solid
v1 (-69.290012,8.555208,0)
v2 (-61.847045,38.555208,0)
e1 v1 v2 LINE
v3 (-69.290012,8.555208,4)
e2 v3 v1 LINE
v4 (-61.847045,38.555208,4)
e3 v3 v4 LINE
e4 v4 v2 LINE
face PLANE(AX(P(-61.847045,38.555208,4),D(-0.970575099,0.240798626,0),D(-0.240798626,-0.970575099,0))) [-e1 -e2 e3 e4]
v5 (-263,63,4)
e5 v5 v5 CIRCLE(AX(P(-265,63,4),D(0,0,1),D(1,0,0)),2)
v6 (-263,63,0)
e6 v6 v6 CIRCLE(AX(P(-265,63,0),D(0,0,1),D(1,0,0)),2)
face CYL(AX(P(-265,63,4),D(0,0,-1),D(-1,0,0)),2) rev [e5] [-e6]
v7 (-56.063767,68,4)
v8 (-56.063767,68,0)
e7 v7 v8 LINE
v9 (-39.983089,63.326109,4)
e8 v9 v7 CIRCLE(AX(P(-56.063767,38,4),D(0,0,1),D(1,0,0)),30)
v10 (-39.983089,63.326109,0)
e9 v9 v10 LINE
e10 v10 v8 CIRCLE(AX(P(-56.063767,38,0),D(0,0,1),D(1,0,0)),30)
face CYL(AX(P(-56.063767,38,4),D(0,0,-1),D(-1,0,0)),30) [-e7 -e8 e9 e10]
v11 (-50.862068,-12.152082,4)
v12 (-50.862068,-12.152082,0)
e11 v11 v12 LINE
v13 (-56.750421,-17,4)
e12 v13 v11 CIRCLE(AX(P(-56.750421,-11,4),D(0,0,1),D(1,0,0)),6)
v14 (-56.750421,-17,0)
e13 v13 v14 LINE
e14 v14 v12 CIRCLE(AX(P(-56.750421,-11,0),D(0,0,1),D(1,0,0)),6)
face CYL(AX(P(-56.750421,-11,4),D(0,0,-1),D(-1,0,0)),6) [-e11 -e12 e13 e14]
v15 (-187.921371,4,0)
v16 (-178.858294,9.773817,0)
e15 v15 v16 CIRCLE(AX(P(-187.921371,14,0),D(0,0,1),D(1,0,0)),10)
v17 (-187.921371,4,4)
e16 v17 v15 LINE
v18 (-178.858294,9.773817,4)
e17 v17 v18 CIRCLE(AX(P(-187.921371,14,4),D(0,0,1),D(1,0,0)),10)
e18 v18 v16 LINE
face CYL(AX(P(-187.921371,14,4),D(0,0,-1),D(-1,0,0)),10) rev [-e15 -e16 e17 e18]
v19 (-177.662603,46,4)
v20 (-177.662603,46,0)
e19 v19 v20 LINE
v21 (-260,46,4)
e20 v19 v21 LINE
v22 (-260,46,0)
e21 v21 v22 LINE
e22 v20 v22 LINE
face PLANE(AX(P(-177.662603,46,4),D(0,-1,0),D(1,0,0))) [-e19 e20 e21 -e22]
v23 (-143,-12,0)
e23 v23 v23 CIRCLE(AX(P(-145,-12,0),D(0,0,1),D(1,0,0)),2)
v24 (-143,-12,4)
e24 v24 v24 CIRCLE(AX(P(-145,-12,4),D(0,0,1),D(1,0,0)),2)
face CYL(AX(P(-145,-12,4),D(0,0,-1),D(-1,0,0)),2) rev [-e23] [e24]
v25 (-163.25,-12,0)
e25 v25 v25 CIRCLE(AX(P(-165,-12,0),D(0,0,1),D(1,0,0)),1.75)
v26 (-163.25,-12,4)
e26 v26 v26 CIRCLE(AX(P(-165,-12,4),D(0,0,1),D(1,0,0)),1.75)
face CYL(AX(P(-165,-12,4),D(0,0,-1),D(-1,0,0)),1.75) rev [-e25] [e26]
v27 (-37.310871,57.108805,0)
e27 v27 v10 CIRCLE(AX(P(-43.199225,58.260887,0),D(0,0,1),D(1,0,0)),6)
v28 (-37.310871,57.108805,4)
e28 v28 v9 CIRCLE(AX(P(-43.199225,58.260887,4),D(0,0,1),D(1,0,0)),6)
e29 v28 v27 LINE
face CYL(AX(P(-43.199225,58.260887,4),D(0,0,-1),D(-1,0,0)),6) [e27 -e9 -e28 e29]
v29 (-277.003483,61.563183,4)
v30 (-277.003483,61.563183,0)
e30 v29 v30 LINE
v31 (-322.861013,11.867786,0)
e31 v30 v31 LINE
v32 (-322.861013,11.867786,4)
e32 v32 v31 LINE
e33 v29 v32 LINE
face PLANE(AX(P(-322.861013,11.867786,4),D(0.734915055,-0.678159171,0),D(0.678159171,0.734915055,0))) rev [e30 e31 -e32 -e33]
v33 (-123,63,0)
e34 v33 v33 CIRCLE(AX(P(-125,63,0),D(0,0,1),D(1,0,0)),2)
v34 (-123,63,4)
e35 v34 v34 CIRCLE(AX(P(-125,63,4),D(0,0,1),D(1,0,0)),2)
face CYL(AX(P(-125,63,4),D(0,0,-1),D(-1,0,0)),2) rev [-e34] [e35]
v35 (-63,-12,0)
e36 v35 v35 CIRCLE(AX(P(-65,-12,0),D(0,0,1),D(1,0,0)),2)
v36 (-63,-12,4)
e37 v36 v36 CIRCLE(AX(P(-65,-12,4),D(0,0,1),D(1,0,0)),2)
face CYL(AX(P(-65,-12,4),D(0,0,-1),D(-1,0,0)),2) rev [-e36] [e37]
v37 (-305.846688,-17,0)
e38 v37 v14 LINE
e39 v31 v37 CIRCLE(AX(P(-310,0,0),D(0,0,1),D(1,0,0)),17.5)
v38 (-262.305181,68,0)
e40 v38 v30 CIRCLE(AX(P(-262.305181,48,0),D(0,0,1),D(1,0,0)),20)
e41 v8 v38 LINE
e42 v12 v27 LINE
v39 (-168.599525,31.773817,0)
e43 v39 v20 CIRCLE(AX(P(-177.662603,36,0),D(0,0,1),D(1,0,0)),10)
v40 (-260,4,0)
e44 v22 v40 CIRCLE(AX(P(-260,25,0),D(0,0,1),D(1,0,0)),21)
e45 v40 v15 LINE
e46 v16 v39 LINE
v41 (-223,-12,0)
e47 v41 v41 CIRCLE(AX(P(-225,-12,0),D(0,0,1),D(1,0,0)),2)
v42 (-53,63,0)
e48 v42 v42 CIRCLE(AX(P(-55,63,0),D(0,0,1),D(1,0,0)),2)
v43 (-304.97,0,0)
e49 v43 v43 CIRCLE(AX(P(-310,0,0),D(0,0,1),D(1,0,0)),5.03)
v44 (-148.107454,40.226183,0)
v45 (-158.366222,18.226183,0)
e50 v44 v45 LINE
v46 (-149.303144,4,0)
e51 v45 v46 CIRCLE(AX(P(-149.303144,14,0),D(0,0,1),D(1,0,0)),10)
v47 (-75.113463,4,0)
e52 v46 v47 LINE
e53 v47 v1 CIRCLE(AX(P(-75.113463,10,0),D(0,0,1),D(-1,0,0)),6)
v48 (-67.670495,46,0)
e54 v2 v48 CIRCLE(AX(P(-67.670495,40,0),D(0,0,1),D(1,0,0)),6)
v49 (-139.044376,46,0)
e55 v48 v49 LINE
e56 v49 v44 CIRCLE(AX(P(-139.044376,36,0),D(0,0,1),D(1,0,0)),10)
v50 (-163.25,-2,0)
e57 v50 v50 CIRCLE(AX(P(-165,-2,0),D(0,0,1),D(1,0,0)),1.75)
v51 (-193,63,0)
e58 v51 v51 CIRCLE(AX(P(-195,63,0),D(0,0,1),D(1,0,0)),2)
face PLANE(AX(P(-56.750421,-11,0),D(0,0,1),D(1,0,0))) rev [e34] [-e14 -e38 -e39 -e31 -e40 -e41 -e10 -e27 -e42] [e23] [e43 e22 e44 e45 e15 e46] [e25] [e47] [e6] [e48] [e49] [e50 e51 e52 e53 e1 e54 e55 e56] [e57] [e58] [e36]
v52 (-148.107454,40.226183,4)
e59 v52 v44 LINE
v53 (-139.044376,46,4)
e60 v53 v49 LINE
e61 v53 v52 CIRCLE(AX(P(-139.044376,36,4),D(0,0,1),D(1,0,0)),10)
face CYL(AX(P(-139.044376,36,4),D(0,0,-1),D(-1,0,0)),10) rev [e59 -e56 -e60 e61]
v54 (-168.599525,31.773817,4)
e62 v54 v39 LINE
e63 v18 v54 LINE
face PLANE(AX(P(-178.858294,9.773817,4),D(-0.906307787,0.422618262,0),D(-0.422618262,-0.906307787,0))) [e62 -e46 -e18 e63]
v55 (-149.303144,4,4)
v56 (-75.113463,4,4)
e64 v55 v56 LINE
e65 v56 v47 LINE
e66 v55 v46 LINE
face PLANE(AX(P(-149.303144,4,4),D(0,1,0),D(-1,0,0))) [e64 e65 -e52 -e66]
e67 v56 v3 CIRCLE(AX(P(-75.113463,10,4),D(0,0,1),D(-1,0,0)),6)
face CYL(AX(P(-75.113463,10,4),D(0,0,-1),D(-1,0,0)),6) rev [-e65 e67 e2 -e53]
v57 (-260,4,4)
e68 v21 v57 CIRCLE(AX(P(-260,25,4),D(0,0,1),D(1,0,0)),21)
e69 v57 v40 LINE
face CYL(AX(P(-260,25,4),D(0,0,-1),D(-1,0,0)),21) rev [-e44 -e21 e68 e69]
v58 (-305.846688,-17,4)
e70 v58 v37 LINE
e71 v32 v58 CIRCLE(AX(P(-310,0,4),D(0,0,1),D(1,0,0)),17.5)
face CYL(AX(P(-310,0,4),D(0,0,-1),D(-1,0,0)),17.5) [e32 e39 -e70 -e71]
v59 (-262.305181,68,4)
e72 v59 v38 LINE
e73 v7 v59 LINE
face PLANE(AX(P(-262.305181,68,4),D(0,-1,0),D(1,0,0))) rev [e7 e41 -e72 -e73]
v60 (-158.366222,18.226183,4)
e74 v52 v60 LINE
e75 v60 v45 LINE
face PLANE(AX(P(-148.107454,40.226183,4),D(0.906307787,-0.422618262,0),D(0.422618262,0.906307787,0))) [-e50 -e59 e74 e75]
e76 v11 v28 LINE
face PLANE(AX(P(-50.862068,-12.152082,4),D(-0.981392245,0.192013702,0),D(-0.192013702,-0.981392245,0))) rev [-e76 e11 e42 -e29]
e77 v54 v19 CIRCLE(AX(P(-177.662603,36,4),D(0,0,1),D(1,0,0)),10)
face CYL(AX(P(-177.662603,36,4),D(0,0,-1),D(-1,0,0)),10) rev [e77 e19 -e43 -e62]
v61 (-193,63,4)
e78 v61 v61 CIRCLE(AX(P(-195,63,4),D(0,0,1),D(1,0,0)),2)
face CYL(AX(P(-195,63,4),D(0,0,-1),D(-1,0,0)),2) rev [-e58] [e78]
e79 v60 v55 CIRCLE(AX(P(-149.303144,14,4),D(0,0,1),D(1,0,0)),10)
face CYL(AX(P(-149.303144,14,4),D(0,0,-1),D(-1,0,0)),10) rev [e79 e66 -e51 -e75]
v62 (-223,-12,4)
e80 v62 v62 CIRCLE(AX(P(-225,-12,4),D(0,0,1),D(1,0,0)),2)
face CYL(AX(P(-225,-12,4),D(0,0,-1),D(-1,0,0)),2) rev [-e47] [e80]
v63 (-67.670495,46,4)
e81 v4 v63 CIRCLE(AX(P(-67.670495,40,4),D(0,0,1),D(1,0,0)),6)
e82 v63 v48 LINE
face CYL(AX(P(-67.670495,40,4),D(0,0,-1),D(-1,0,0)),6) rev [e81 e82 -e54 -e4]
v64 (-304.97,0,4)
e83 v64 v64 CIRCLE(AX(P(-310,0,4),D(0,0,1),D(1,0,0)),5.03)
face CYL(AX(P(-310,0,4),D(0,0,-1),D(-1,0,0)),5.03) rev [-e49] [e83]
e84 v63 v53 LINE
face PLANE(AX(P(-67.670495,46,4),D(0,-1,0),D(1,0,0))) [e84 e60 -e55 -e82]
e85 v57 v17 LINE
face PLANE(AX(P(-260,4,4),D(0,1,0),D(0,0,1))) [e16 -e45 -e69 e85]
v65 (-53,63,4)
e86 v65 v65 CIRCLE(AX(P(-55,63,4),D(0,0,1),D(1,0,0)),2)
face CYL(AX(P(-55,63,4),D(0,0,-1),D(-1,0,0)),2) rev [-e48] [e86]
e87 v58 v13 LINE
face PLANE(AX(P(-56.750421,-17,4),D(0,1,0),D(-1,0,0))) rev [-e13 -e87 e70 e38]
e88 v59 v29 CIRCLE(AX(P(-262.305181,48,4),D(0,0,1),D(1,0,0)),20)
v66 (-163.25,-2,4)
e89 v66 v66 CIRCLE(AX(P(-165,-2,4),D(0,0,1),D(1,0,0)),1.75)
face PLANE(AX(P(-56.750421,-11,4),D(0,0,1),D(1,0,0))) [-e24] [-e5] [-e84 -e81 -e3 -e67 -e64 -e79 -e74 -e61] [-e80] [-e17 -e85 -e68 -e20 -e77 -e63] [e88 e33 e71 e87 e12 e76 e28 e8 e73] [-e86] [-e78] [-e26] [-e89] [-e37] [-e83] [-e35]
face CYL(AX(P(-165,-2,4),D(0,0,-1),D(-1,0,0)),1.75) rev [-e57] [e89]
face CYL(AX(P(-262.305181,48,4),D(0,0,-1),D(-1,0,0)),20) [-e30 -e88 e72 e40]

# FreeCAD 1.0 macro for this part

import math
import FreeCAD as App
import Part
import Sketcher
Q = App.Units.Quantity

doc = App.newDocument("Part")
body = doc.addObject("PartDesign::Body", "Body")

sketch1 = body.newObject("Sketcher::SketchObject", "Sketch")
sketch1.AttachmentSupport = (doc.getObject("XY_Plane"), [""])
sketch1.MapMode = "FlatFace"
sketch1.addGeometry([
    Part.LineSegment(App.Vector(-56.063767, 68, 0), App.Vector(-262.305181, 68, 0)),
    Part.ArcOfCircle(Part.Circle(App.Vector(-262.305181, 48, 0), App.Vector(0, 0, 1), 20), math.radians(90), math.radians(137.300039)),
    Part.LineSegment(App.Vector(-277.003483, 61.563183, 0), App.Vector(-322.861013, 11.867786, 0)),
    Part.ArcOfCircle(Part.Circle(App.Vector(-310, 0, 0), App.Vector(0, 0, 1), 17.5), math.radians(137.300039), math.radians(283.729133)),
    Part.LineSegment(App.Vector(-305.846688, -17, 0), App.Vector(-56.750421, -17, 0)),
    Part.ArcOfCircle(Part.Circle(App.Vector(-56.750421, -11, 0), App.Vector(0, 0, 1), 6), math.radians(-90), math.radians(-11.070325)),
    Part.LineSegment(App.Vector(-50.862068, -12.152082, 0), App.Vector(-37.310871, 57.108805, 0)),
    Part.ArcOfCircle(Part.Circle(App.Vector(-43.199225, 58.260887, 0), App.Vector(0, 0, 1), 6), math.radians(-11.070325), math.radians(57.586712)),
    Part.ArcOfCircle(Part.Circle(App.Vector(-56.063767, 38, 0), App.Vector(0, 0, 1), 30), math.radians(57.586712), math.radians(90)),
    Part.Circle(App.Vector(-310, 0, 0), App.Vector(0, 0, 1), 5.03),
    Part.Circle(App.Vector(-225, -12, 0), App.Vector(0, 0, 1), 2),
    Part.ArcOfCircle(Part.Circle(App.Vector(-177.662603, 36, 0), App.Vector(0, 0, 1), 10), math.radians(-25), math.radians(90)),
    Part.LineSegment(App.Vector(-168.599525, 31.773817, 0), App.Vector(-178.858294, 9.773817, 0)),
    Part.ArcOfCircle(Part.Circle(App.Vector(-187.921371, 14, 0), App.Vector(0, 0, 1), 10), math.radians(-90), math.radians(-25)),
    Part.LineSegment(App.Vector(-187.921371, 4, 0), App.Vector(-260, 4, 0)),
    Part.ArcOfCircle(Part.Circle(App.Vector(-260, 25, 0), App.Vector(0, 0, 1), 21), math.radians(90), math.radians(270)),
    Part.LineSegment(App.Vector(-260, 46, 0), App.Vector(-177.662603, 46, 0)),
    Part.Circle(App.Vector(-165, -12, 0), App.Vector(0, 0, 1), 1.75),
    Part.Circle(App.Vector(-145, -12, 0), App.Vector(0, 0, 1), 2),
    Part.Circle(App.Vector(-165, -2, 0), App.Vector(0, 0, 1), 1.75),
    Part.Circle(App.Vector(-65, -12, 0), App.Vector(0, 0, 1), 2),
    Part.ArcOfCircle(Part.Circle(App.Vector(-139.044376, 36, 0), App.Vector(0, 0, 1), 10), math.radians(90), math.radians(155)),
    Part.LineSegment(App.Vector(-139.044376, 46, 0), App.Vector(-67.670495, 46, 0)),
    Part.ArcOfCircle(Part.Circle(App.Vector(-67.670495, 40, 0), App.Vector(0, 0, 1), 6), math.radians(-13.933681), math.radians(90)),
    Part.LineSegment(App.Vector(-61.847045, 38.555208, 0), App.Vector(-69.290012, 8.555208, 0)),
    Part.ArcOfCircle(Part.Circle(App.Vector(-75.113463, 10, 0), App.Vector(0, 0, 1), 6), math.radians(-90), math.radians(-13.933681)),
    Part.LineSegment(App.Vector(-75.113463, 4, 0), App.Vector(-149.303144, 4, 0)),
    Part.ArcOfCircle(Part.Circle(App.Vector(-149.303144, 14, 0), App.Vector(0, 0, 1), 10), math.radians(155), math.radians(270)),
    Part.LineSegment(App.Vector(-158.366222, 18.226183, 0), App.Vector(-148.107454, 40.226183, 0)),
    Part.Circle(App.Vector(-265, 63, 0), App.Vector(0, 0, 1), 2),
    Part.Circle(App.Vector(-195, 63, 0), App.Vector(0, 0, 1), 2),
    Part.Circle(App.Vector(-125, 63, 0), App.Vector(0, 0, 1), 2),
    Part.Circle(App.Vector(-55, 63, 0), App.Vector(0, 0, 1), 2),
], False)
sketch1.addConstraint([
    Sketcher.Constraint("Coincident", 0, 2, 1, 1),
    Sketcher.Constraint("Coincident", 1, 2, 2, 1),
    Sketcher.Constraint("Coincident", 2, 2, 3, 1),
    Sketcher.Constraint("Coincident", 3, 2, 4, 1),
    Sketcher.Constraint("Coincident", 4, 2, 5, 1),
    Sketcher.Constraint("Coincident", 5, 2, 6, 1),
    Sketcher.Constraint("Coincident", 6, 2, 7, 1),
    Sketcher.Constraint("Coincident", 7, 2, 8, 1),
    Sketcher.Constraint("Coincident", 8, 2, 0, 1),
    Sketcher.Constraint("Coincident", 11, 1, 12, 1),
    Sketcher.Constraint("Coincident", 12, 2, 13, 2),
    Sketcher.Constraint("Coincident", 13, 1, 14, 1),
    Sketcher.Constraint("Coincident", 14, 2, 15, 2),
    Sketcher.Constraint("Coincident", 15, 1, 16, 1),
    Sketcher.Constraint("Coincident", 16, 2, 11, 2),
    Sketcher.Constraint("Coincident", 21, 1, 22, 1),
    Sketcher.Constraint("Coincident", 22, 2, 23, 2),
    Sketcher.Constraint("Coincident", 23, 1, 24, 1),
    Sketcher.Constraint("Coincident", 24, 2, 25, 2),
    Sketcher.Constraint("Coincident", 25, 1, 26, 1),
    Sketcher.Constraint("Coincident", 26, 2, 27, 2),
    Sketcher.Constraint("Coincident", 27, 1, 28, 1),
    Sketcher.Constraint("Coincident", 28, 2, 21, 2),
    Sketcher.Constraint("Horizontal", 0),
    Sketcher.Constraint("Horizontal", 4),
    Sketcher.Constraint("Horizontal", 14),
    Sketcher.Constraint("Horizontal", 16),
    Sketcher.Constraint("Horizontal", 22),
    Sketcher.Constraint("Horizontal", 26),
    Sketcher.Constraint("Coincident", 9, 3, 3, 3),
    Sketcher.Constraint("PointOnObject", 3, 3, -1),
    Sketcher.Constraint("Diameter", 10, Q("4 mm")),
    Sketcher.Constraint("Diameter", 18, Q("4 mm")),
    Sketcher.Constraint("Diameter", 20, Q("4 mm")),
    Sketcher.Constraint("Diameter", 29, Q("4 mm")),
    Sketcher.Constraint("Diameter", 30, Q("4 mm")),
    Sketcher.Constraint("Diameter", 31, Q("4 mm")),
    Sketcher.Constraint("Diameter", 32, Q("4 mm")),
    Sketcher.Constraint("Radius", 1, Q("20 mm")),
    Sketcher.Constraint("Radius", 5, Q("6 mm")),
    Sketcher.Constraint("Radius", 7, Q("6 mm")),
    Sketcher.Constraint("Radius", 8, Q("30 mm")),
    Sketcher.Constraint("Radius", 11, Q("10 mm")),
    Sketcher.Constraint("Radius", 13, Q("10 mm")),
    Sketcher.Constraint("Radius", 15, Q("21 mm")),
    Sketcher.Constraint("Radius", 21, Q("10 mm")),
    Sketcher.Constraint("Radius", 23, Q("6 mm")),
    Sketcher.Constraint("Radius", 25, Q("6 mm")),
    Sketcher.Constraint("Radius", 27, Q("10 mm")),
    Sketcher.Constraint("Diameter", 17, Q("3.5 mm")),
    Sketcher.Constraint("Diameter", 19, Q("3.5 mm")),
    Sketcher.Constraint("Radius", 3, Q("17.5 mm")),
    Sketcher.Constraint("Diameter", 9, Q("10.06 mm")),
    Sketcher.Constraint("DistanceY", -1, 1, 1, 3, Q("48 mm")),
    Sketcher.Constraint("DistanceX", 3, 3, -1, 1, Q("310 mm")),
    Sketcher.Constraint("DistanceY", 5, 3, -1, 1, Q("11 mm")),
    Sketcher.Constraint("DistanceX", 10, 3, -1, 1, Q("225 mm")),
    Sketcher.Constraint("DistanceY", 10, 3, -1, 1, Q("12 mm")),
    Sketcher.Constraint("DistanceY", -1, 1, 11, 3, Q("36 mm")),
    Sketcher.Constraint("DistanceX", 15, 3, -1, 1, Q("260 mm")),
    Sketcher.Constraint("DistanceX", 17, 3, -1, 1, Q("165 mm")),
    Sketcher.Constraint("DistanceY", 17, 3, -1, 1, Q("12 mm")),
    Sketcher.Constraint("DistanceX", 18, 3, -1, 1, Q("145 mm")),
    Sketcher.Constraint("DistanceY", 18, 3, -1, 1, Q("12 mm")),
    Sketcher.Constraint("DistanceX", 19, 3, -1, 1, Q("165 mm")),
    Sketcher.Constraint("DistanceY", 19, 3, -1, 1, Q("2 mm")),
    Sketcher.Constraint("DistanceX", 20, 3, -1, 1, Q("65 mm")),
    Sketcher.Constraint("DistanceY", 20, 3, -1, 1, Q("12 mm")),
    Sketcher.Constraint("DistanceY", -1, 1, 21, 3, Q("36 mm")),
    Sketcher.Constraint("DistanceY", -1, 1, 25, 3, Q("10 mm")),
    Sketcher.Constraint("DistanceX", 29, 3, -1, 1, Q("265 mm")),
    Sketcher.Constraint("DistanceY", -1, 1, 29, 3, Q("63 mm")),
    Sketcher.Constraint("DistanceX", 30, 3, -1, 1, Q("195 mm")),
    Sketcher.Constraint("DistanceY", -1, 1, 30, 3, Q("63 mm")),
    Sketcher.Constraint("DistanceX", 31, 3, -1, 1, Q("125 mm")),
    Sketcher.Constraint("DistanceY", -1, 1, 31, 3, Q("63 mm")),
    Sketcher.Constraint("DistanceX", 32, 3, -1, 1, Q("55 mm")),
    Sketcher.Constraint("DistanceY", -1, 1, 32, 3, Q("63 mm")),
    Sketcher.Constraint("DistanceX", 14, 2, -1, 1, Q("260 mm")),
    Sketcher.Constraint("DistanceX", 15, 1, -1, 1, Q("260 mm")),
    Sketcher.Constraint("DistanceY", 12, 2, 11, 1, Q("22 mm")),
    Sketcher.Constraint("DistanceY", 27, 1, 28, 2, Q("22 mm")),
    Sketcher.Constraint("Distance", 2, Q("67.620601 mm")),
    Sketcher.Constraint("DistanceX", 14, 2, 14, 1, Q("72.078629 mm")),
    Sketcher.Constraint("DistanceX", 22, 1, 22, 2, Q("71.37388 mm")),
    Sketcher.Constraint("DistanceX", 26, 2, 26, 1, Q("74.189682 mm")),
    Sketcher.Constraint("DistanceX", 1, 2, 0, 2, Q("14.698301 mm")),
    Sketcher.Constraint("DistanceX", 1, 2, 1, 3, Q("14.698301 mm")),
    Sketcher.Constraint("DistanceX", 8, 3, 5, 2, Q("5.201699 mm")),
    Sketcher.Constraint("Distance", 24, Q("30.909509 mm")),
    Sketcher.Constraint("DistanceX", 0, 2, 0, 1, Q("206.241414 mm")),
    Sketcher.Constraint("DistanceX", 4, 1, 4, 2, Q("249.096267 mm")),
    Sketcher.Constraint("DistanceX", 16, 1, 16, 2, Q("82.337397 mm")),
    Sketcher.Constraint("DistanceX", 1, 3, -1, 1, Q("262.305181 mm")),
    Sketcher.Constraint("DistanceX", 5, 3, -1, 1, Q("56.750421 mm")),
    Sketcher.Constraint("DistanceX", 13, 3, -1, 1, Q("187.921371 mm")),
    Sketcher.Constraint("DistanceX", 6, 2, -1, 1, Q("37.310871 mm")),
    Sketcher.Constraint("DistanceX", 7, 2, -1, 1, Q("39.983089 mm")),
    Sketcher.Constraint("DistanceY", -1, 1, 7, 2, Q("63.326109 mm")),
    Sketcher.Constraint("DistanceY", -1, 1, 23, 1, Q("38.555208 mm")),
    Sketcher.Constraint("DistanceY", -1, 1, 24, 2, Q("8.555208 mm")),
    Sketcher.Constraint("DistanceX", 1, 3, 11, 3, Q("84.642578 mm")),
    Sketcher.Constraint("DistanceX", 11, 3, 7, 3, Q("134.463378 mm")),
    Sketcher.Constraint("DistanceX", 23, 3, 8, 3, Q("11.606728 mm")),
    Sketcher.Constraint("DistanceX", 21, 3, 23, 3, Q("71.37388 mm")),
    Sketcher.Constraint("DistanceX", 27, 3, 21, 3, Q("10.258768 mm")),
    Sketcher.Constraint("DistanceX", 11, 1, 27, 3, Q("19.296381 mm")),
    Sketcher.Constraint("DistanceX", 11, 1, 21, 1, Q("29.555149 mm")),
    Sketcher.Constraint("DistanceX", 25, 1, 24, 2, Q("5.823451 mm")),
    Sketcher.Constraint("DistanceX", 12, 2, 27, 1, Q("20.492071 mm")),
])
pad1 = body.newObject("PartDesign::Pad", "Pad")
pad1.Profile = sketch1
pad1.Length = 4

doc.recompute()
